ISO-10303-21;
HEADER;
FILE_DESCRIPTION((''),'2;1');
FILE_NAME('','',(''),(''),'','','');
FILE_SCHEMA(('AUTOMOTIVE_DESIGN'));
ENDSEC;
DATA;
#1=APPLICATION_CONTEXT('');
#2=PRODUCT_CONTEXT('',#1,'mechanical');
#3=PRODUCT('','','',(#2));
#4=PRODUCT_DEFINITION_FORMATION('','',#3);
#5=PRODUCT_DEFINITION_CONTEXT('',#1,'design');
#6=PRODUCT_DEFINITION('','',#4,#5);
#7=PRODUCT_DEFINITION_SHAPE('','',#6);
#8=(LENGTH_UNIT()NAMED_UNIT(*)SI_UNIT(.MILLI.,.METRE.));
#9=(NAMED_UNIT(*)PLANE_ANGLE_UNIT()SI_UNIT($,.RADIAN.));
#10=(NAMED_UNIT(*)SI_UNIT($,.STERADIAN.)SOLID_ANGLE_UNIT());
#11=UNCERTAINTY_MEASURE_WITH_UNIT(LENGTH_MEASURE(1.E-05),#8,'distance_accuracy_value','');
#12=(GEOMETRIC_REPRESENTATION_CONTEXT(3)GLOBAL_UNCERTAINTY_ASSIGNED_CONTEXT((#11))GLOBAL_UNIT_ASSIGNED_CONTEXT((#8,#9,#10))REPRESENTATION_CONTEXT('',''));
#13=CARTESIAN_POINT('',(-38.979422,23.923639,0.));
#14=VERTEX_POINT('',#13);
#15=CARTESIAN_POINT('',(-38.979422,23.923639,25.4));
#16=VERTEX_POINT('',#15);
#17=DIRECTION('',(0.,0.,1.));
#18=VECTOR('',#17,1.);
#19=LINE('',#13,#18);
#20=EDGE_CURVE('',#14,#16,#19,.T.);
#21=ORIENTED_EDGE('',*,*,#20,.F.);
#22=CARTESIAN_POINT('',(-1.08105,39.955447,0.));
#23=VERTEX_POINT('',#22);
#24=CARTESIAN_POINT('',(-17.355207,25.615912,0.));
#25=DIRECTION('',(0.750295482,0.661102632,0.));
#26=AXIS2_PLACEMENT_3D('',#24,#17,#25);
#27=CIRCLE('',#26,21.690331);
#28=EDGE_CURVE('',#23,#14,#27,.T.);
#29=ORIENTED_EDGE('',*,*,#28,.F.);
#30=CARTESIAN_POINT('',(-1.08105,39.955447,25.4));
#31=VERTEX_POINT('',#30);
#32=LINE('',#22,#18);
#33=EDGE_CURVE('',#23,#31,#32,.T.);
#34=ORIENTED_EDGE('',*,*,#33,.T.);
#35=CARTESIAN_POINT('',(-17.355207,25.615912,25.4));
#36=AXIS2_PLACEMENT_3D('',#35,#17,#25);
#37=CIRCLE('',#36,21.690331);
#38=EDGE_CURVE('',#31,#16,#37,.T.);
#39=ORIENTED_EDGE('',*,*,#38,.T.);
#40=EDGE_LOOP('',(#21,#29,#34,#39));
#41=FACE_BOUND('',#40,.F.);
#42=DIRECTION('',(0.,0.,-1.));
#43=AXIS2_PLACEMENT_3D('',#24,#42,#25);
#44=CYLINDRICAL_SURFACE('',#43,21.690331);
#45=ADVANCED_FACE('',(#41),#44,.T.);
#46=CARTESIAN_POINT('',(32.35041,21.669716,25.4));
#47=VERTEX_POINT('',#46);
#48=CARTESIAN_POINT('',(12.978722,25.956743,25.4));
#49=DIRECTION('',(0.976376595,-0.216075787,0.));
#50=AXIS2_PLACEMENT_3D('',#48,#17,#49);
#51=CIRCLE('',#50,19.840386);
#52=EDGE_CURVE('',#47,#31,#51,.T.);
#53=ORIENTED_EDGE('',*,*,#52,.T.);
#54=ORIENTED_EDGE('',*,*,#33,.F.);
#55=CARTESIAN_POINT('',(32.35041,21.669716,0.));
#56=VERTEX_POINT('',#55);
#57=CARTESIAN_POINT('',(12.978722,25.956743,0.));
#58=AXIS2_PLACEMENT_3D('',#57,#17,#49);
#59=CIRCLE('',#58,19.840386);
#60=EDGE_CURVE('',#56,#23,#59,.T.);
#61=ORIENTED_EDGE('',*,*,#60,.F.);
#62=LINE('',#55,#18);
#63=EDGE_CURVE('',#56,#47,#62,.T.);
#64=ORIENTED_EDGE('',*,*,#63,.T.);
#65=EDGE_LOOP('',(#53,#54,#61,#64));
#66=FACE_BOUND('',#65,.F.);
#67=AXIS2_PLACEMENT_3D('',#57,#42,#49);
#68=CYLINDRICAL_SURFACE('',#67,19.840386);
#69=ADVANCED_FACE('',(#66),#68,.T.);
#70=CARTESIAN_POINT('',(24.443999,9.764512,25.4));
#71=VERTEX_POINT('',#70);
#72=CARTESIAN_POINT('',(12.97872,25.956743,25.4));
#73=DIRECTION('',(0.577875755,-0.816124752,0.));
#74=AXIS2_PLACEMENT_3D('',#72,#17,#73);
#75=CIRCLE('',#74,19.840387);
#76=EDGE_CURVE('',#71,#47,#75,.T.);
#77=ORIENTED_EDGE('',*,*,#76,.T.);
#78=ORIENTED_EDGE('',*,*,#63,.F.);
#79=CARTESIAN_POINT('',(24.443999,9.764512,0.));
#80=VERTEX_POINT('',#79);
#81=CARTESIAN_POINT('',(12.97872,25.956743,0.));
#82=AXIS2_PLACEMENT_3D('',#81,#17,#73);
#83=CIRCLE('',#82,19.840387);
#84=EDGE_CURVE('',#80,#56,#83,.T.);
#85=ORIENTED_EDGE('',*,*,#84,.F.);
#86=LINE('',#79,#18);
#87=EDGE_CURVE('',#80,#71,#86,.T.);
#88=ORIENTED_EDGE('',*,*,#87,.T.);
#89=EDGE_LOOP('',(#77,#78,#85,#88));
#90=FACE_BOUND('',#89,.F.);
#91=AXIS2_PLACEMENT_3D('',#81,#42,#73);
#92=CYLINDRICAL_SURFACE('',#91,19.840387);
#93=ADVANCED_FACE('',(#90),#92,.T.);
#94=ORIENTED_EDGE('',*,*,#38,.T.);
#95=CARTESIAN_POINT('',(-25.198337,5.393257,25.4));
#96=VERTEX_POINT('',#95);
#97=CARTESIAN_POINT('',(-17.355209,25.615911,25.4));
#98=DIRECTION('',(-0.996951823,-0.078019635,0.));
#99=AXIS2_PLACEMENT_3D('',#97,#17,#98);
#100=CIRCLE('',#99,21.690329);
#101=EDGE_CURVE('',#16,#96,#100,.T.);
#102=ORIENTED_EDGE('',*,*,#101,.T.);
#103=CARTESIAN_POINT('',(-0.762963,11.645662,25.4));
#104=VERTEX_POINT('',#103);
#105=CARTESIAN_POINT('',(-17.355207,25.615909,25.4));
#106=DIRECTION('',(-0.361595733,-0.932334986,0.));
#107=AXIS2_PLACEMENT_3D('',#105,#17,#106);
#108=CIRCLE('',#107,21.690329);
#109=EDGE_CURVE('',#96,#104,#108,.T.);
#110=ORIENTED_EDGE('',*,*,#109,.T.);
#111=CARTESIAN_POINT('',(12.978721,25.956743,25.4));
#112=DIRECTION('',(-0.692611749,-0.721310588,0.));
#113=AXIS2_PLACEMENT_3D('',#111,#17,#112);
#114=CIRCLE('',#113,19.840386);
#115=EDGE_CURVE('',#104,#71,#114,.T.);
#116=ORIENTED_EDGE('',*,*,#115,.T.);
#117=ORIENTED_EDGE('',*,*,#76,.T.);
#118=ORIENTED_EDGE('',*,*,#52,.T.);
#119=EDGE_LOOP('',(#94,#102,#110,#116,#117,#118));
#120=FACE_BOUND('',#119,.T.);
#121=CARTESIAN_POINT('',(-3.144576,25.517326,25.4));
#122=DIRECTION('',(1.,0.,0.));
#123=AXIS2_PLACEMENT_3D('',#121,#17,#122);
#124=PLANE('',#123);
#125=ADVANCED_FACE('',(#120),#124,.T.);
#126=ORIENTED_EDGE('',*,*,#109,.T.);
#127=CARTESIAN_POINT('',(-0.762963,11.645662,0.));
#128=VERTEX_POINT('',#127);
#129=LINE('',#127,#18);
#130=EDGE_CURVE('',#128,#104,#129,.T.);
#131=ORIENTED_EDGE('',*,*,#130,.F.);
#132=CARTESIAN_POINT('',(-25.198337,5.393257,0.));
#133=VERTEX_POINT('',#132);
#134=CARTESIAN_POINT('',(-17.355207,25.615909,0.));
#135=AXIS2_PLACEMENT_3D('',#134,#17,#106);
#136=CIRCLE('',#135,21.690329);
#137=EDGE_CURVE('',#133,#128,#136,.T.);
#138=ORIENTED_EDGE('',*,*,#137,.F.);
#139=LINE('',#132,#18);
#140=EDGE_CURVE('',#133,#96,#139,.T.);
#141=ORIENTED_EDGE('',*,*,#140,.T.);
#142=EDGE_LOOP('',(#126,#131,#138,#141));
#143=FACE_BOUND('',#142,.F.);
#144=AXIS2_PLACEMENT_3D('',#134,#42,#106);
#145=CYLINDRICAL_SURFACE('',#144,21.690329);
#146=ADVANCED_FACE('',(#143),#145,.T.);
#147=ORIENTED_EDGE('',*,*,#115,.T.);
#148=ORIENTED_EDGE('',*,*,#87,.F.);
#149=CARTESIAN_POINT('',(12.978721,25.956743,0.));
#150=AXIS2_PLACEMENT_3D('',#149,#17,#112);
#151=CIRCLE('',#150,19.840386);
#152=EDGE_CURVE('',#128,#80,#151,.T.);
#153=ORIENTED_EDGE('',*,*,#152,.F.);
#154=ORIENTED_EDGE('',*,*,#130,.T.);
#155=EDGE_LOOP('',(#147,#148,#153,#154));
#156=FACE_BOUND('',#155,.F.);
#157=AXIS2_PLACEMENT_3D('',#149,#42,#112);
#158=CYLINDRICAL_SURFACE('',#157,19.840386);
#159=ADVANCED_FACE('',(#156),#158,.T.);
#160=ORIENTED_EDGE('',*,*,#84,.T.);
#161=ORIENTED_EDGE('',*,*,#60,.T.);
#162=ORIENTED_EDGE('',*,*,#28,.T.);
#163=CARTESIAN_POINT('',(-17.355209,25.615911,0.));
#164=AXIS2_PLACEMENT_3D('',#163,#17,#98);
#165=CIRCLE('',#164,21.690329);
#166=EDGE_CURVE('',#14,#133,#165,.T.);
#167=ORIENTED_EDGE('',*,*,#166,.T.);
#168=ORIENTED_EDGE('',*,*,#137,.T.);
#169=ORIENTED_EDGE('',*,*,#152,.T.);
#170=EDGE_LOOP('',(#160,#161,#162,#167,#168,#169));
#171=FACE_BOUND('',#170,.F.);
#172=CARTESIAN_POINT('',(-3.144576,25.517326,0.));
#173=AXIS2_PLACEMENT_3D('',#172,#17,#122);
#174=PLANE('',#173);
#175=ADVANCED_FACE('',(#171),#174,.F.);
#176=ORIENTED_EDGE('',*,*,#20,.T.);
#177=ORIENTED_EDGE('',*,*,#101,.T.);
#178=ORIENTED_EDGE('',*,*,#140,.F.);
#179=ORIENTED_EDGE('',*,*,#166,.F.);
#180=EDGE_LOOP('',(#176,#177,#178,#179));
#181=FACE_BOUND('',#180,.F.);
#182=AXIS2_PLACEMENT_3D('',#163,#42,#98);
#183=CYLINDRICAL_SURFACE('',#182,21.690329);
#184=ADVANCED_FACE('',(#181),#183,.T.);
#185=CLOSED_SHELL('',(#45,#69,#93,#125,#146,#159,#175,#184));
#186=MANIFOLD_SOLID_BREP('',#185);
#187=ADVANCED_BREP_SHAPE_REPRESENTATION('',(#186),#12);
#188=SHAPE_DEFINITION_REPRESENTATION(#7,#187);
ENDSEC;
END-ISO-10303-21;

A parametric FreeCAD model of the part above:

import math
import FreeCAD as App
import Part
import Sketcher
from FreeCAD import Vector
Q = App.Units.Quantity

doc = App.newDocument("Part")
body = doc.addObject("PartDesign::Body", "Body")

# Sketch on XY plane
sketch1 = doc.addObject("Sketcher::SketchObject", "Sketch")
body.addObject(sketch1)
sketch1.AttachmentSupport = (doc.XY_Plane, [""])
sketch1.MapMode = "FlatFace"
sketch1.addGeometry([
    Part.ArcOfCircle(Part.Circle(Vector(12.978722, 25.956743, 0), Vector(0, 0, 1), 19.840386), math.radians(-12.478649), math.radians(135.124701)),  # 0
    Part.ArcOfCircle(Part.Circle(Vector(-17.355207, 25.615912, 0), Vector(0, 0, 1), 21.690331), math.radians(41.38402), math.radians(184.474747)),  # 1
    Part.ArcOfCircle(Part.Circle(Vector(-17.355209, 25.615911, 0), Vector(0, 0, 1), 21.690329), math.radians(-175.525257), math.radians(-111.198221)),  # 2
    Part.ArcOfCircle(Part.Circle(Vector(-17.355207, 25.615909, 0), Vector(0, 0, 1), 21.690329), math.radians(-111.198228), math.radians(-40.096526)),  # 3
    Part.ArcOfCircle(Part.Circle(Vector(12.978721, 25.956743, 0), Vector(0, 0, 1), 19.840386), math.radians(-133.837209), math.radians(-54.698729)),  # 4
    Part.ArcOfCircle(Part.Circle(Vector(12.97872, 25.956743, 0), Vector(0, 0, 1), 19.840387), math.radians(-54.698727), math.radians(-12.478649)),  # 5
], False)
sketch1.addConstraint([
    Sketcher.Constraint("Coincident", 0, 2, 1, 1),
    Sketcher.Constraint("Tangent", 1, 2, 2, 1),
    Sketcher.Constraint("Tangent", 2, 2, 3, 1),
    Sketcher.Constraint("Coincident", 3, 2, 4, 1),
    Sketcher.Constraint("Tangent", 4, 2, 5, 1),
    Sketcher.Constraint("Tangent", 5, 2, 0, 1),
    Sketcher.Constraint("Coincident", 3, 3, 1, 3),
    Sketcher.Constraint("Coincident", 4, 3, 0, 3),
    Sketcher.Constraint("Radius", 1, Q("21.690331 mm")),
    Sketcher.Constraint("Radius", 0, Q("19.840386 mm")),
    Sketcher.Constraint("DistanceX", 3, 2, 4, 2, Q("0.9924001 in")),
    Sketcher.Constraint("DistanceX", -1, 1, 4, 2, Q("24.443999 mm")),
    Sketcher.Constraint("DistanceX", -1, 1, 0, 3, Q("12.978722 mm")),
    Sketcher.Constraint("DistanceX", 2, 3, -1, 1, Q("17.355209 mm")),
    Sketcher.Constraint("DistanceY", -1, 1, 2, 3, Q("25.615911 mm")),
    Sketcher.Constraint("DistanceX", 1, 2, -1, 1, Q("38.979422 mm")),
    Sketcher.Constraint("DistanceX", -1, 1, 5, 2, Q("32.35041 mm")),
    Sketcher.Constraint("DistanceX", 2, 2, 3, 3, Q("7.84313 mm")),
])
pad1 = doc.addObject("PartDesign::Pad", "Pad")
body.addObject(pad1)
pad1.Profile = sketch1
pad1.Length = Q("1 in")

doc.recompute()
